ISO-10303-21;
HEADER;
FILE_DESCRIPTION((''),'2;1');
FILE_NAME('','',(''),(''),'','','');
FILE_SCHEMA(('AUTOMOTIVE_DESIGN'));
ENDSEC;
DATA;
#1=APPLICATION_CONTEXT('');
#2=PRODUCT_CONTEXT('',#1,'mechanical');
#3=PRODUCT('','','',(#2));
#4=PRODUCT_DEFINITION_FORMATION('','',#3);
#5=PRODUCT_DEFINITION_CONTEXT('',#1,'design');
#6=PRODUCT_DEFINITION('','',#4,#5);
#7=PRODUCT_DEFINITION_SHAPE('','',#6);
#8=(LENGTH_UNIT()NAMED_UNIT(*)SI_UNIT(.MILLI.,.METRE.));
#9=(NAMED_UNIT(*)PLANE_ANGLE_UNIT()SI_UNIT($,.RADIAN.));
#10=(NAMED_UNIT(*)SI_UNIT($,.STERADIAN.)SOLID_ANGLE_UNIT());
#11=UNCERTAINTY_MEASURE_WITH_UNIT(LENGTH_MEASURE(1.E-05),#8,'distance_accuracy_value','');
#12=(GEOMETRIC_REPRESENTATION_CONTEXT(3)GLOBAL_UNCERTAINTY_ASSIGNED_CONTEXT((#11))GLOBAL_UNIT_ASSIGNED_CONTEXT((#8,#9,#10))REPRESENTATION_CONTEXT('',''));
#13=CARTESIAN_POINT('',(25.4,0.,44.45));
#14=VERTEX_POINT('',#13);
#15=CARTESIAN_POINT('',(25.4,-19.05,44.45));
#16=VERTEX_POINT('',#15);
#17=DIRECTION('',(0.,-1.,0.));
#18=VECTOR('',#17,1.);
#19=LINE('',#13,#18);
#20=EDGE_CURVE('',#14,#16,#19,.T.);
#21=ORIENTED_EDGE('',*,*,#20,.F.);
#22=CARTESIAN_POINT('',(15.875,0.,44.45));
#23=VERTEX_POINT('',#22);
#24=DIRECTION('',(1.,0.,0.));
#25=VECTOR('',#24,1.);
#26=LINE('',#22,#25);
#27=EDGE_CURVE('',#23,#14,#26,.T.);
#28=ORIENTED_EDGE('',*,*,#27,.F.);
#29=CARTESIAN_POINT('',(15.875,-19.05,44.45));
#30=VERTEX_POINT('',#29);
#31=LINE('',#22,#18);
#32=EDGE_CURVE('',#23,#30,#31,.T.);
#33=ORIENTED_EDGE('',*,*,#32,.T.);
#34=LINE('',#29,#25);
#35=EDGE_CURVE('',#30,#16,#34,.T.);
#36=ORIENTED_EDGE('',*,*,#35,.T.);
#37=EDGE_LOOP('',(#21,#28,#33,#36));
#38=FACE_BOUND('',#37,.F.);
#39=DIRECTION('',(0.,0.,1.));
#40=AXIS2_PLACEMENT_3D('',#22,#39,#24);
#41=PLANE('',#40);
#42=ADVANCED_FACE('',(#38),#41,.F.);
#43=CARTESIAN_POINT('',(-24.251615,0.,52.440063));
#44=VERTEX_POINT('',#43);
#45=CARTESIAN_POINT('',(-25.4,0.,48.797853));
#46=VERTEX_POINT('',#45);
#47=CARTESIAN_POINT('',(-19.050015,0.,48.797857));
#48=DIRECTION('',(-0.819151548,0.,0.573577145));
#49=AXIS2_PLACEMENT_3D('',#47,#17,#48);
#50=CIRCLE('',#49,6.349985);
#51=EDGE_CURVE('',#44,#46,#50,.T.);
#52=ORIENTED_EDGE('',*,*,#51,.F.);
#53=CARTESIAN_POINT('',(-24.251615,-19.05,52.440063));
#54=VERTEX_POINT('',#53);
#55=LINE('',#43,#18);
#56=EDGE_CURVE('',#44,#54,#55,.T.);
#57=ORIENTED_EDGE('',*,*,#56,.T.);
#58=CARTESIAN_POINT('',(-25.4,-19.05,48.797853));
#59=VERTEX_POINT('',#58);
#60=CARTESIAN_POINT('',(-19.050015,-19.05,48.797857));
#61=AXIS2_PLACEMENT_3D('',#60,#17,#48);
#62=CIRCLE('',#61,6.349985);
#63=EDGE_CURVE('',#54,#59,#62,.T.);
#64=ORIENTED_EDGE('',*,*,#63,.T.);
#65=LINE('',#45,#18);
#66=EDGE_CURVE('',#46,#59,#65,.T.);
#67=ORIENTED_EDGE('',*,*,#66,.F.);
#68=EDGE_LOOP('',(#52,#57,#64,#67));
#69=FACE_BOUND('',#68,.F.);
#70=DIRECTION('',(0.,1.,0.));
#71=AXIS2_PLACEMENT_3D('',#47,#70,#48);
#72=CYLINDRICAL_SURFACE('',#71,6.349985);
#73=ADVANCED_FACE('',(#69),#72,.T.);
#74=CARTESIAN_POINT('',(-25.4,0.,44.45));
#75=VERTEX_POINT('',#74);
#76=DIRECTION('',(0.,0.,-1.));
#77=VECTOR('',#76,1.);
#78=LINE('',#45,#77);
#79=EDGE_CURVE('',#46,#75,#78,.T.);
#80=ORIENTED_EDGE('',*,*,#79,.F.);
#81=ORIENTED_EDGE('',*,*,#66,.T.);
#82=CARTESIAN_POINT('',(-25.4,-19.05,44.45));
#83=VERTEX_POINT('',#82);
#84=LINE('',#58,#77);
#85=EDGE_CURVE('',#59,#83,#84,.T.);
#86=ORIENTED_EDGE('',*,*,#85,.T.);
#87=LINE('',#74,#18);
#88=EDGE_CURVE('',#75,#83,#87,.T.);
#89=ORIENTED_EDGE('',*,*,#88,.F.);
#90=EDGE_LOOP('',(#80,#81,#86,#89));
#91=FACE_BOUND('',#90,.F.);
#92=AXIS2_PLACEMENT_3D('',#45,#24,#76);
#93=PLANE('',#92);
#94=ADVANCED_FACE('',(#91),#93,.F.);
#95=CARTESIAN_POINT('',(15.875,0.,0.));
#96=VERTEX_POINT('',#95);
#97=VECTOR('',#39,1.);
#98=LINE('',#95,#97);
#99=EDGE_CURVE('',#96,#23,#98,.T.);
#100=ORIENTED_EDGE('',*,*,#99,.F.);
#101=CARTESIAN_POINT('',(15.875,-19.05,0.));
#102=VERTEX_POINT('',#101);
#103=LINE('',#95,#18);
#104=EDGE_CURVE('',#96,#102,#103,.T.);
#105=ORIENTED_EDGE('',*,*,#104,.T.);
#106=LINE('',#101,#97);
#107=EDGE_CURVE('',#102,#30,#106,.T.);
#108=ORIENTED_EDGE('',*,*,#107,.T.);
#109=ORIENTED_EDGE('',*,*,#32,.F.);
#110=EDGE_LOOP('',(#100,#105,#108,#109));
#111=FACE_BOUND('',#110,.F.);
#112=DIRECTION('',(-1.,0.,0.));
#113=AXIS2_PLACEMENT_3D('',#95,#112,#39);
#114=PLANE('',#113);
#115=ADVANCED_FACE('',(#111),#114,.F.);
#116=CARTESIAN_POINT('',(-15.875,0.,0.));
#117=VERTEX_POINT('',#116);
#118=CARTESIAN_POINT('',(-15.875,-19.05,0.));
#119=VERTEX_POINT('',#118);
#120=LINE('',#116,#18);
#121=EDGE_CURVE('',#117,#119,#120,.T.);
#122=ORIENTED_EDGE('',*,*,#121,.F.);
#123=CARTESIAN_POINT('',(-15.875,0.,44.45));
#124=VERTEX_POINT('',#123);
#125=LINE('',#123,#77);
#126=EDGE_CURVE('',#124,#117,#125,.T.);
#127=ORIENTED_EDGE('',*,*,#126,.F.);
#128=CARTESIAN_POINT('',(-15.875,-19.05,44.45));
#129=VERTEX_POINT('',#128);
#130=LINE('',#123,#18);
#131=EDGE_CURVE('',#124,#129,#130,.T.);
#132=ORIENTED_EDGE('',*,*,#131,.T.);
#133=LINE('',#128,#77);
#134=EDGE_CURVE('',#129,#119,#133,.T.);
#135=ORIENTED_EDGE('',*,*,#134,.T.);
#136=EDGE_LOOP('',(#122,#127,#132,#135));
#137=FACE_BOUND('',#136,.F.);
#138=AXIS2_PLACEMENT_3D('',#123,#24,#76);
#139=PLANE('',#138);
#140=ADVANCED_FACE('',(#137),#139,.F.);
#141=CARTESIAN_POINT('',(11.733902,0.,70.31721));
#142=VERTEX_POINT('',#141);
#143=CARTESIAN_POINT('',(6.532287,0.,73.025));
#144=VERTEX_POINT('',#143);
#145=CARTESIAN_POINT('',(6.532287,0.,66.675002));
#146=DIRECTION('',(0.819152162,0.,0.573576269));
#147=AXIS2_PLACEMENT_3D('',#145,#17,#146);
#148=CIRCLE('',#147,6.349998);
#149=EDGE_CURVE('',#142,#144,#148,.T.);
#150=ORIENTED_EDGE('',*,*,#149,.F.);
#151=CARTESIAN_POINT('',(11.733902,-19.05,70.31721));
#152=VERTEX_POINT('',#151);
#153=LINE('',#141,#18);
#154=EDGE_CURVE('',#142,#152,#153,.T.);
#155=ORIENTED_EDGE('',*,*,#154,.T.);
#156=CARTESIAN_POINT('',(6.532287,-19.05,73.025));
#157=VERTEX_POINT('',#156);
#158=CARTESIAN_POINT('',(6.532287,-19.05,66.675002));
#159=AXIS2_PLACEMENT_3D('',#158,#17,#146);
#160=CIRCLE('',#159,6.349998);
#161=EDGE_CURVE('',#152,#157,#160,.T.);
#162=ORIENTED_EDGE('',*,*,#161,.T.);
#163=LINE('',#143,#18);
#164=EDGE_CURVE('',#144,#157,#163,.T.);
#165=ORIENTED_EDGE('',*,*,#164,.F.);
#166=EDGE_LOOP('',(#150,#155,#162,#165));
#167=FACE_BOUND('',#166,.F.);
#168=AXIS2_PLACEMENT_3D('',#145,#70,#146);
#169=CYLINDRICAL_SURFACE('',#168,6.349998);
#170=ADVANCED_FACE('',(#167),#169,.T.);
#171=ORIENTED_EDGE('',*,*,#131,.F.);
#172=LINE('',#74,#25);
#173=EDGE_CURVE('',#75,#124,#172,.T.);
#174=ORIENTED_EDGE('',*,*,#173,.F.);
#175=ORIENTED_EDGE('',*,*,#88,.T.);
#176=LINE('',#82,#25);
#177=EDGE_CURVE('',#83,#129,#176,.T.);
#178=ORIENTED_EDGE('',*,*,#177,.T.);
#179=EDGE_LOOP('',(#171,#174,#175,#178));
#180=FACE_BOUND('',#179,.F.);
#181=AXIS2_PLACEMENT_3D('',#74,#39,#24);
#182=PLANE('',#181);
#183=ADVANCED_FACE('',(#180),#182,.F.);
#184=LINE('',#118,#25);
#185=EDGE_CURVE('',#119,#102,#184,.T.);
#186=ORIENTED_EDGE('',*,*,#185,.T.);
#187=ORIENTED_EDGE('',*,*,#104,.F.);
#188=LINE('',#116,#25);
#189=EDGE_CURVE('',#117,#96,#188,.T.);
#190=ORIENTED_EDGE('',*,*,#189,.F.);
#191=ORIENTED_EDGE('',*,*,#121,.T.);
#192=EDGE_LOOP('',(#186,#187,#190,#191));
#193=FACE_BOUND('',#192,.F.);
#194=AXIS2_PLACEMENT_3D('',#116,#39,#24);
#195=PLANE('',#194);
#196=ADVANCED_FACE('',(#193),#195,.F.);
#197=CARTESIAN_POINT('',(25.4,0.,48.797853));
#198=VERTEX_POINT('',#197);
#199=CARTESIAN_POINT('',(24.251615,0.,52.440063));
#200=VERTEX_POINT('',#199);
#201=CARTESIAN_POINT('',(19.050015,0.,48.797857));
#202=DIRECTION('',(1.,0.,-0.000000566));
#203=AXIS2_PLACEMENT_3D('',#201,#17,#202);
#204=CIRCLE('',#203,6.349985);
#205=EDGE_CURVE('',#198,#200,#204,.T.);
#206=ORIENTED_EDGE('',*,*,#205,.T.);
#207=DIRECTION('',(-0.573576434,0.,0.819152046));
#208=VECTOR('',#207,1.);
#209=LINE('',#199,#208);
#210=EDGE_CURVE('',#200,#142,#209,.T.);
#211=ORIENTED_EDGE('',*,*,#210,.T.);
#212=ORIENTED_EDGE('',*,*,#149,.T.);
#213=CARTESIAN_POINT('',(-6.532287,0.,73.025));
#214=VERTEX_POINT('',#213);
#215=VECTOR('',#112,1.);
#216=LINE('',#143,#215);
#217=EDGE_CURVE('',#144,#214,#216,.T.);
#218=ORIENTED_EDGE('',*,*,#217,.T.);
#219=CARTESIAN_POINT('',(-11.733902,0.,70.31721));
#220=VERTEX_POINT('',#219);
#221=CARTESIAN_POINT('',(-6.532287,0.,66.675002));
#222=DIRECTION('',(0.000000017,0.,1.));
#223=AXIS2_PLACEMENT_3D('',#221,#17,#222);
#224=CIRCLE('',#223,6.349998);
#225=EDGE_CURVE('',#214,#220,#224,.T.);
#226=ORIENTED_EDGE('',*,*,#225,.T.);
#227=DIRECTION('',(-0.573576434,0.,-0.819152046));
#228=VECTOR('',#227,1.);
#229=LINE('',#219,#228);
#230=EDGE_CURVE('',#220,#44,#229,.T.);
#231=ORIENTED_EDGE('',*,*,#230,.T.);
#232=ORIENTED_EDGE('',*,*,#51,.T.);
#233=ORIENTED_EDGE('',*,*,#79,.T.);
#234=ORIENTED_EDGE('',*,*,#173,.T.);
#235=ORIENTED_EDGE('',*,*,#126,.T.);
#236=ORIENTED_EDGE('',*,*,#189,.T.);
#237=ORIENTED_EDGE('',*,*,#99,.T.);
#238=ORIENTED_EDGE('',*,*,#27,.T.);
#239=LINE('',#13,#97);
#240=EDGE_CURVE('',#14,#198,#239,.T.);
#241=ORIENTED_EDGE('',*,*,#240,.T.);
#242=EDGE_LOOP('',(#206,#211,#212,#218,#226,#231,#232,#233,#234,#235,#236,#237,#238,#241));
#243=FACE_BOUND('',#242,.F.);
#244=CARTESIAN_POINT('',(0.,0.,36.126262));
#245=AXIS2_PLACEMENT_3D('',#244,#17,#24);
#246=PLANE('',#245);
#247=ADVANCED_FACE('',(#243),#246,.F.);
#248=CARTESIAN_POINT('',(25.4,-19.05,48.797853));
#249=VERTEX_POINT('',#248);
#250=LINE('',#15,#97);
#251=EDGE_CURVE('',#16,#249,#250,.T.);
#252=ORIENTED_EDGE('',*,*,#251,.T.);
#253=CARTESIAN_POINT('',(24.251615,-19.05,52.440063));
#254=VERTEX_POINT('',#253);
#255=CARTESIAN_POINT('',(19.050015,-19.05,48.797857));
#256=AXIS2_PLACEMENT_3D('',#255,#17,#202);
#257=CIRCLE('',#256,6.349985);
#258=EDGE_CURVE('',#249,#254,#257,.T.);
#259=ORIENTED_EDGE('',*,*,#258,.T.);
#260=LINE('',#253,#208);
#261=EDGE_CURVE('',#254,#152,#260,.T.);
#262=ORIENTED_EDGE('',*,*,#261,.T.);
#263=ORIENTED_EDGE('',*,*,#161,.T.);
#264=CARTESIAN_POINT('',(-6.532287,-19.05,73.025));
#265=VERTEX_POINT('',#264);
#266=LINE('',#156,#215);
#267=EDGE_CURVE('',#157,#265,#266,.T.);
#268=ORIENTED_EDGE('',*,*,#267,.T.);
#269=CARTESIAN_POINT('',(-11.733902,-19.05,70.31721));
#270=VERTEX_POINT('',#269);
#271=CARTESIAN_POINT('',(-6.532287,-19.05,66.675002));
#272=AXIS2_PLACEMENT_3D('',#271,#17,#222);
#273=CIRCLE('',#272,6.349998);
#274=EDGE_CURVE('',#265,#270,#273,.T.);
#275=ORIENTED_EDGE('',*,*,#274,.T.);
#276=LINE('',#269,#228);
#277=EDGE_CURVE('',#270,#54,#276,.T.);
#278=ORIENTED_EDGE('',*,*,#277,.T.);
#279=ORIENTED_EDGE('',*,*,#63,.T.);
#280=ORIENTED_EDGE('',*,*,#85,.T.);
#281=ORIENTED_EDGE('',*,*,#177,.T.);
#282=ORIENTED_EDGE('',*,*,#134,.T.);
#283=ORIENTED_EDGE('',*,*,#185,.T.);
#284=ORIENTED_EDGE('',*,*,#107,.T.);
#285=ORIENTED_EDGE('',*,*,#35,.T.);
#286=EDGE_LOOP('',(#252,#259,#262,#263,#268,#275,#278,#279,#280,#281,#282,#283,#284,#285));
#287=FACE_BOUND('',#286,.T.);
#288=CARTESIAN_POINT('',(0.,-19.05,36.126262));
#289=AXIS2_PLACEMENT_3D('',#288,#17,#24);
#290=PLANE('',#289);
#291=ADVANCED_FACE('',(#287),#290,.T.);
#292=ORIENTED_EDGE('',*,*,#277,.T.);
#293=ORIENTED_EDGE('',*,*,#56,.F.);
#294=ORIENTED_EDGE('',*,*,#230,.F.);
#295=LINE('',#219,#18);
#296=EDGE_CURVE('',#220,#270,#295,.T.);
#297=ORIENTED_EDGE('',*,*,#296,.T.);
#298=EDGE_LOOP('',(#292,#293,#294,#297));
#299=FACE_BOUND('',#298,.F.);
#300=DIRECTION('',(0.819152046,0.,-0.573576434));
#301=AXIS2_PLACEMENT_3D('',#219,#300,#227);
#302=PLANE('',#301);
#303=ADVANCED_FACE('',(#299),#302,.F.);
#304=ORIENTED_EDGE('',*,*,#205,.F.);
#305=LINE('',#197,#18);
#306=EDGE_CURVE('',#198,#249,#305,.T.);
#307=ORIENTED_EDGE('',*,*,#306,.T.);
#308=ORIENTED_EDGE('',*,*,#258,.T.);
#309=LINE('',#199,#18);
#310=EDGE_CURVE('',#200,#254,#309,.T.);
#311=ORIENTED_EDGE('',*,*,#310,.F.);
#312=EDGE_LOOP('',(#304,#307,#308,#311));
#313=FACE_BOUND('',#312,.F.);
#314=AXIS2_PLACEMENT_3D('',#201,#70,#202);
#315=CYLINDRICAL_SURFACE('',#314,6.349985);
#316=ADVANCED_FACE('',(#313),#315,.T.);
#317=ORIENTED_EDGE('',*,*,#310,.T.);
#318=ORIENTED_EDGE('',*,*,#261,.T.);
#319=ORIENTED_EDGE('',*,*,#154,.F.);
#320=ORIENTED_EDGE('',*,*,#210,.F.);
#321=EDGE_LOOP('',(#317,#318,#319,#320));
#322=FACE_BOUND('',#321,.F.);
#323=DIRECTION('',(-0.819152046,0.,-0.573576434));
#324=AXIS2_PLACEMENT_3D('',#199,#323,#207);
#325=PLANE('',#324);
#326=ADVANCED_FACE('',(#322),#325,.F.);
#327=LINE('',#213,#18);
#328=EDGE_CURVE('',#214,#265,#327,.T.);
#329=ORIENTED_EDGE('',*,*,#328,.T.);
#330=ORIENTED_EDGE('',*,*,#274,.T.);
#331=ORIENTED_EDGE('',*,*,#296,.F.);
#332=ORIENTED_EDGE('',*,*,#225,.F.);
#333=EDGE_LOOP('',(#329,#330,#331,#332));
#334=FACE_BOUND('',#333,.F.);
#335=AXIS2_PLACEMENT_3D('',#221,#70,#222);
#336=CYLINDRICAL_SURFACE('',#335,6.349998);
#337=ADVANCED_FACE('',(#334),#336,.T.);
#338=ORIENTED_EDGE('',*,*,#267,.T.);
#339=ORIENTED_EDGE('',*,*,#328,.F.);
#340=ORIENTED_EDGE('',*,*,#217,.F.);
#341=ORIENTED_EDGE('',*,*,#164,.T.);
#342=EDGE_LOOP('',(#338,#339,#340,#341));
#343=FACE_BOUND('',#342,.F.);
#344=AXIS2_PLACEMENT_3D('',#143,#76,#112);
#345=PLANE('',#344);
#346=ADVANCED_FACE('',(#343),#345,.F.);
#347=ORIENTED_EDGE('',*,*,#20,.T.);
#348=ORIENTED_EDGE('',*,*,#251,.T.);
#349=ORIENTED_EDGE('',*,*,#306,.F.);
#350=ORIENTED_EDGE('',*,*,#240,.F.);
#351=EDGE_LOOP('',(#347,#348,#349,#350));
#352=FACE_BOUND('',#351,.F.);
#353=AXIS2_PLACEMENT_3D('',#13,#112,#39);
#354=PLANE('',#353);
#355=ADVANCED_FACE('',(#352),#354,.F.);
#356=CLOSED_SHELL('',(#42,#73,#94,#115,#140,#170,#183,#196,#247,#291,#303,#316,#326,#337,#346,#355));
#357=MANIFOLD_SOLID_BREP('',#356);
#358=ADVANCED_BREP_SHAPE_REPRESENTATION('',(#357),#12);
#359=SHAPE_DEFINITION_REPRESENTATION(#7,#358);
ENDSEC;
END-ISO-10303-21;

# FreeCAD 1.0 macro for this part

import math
import FreeCAD as App
import Part
import Sketcher
Q = App.Units.Quantity

doc = App.newDocument("Part")
body = doc.addObject("PartDesign::Body", "Body")

# Sketch on XZ plane
sketch1 = doc.addObject("Sketcher::SketchObject", "Sketch")
body.addObject(sketch1)
sketch1.AttachmentSupport = (doc.XZ_Plane, [""])
sketch1.MapMode = "FlatFace"
sketch1.addGeometry([
    Part.LineSegment(App.Vector(-15.9, 0, 0), App.Vector(15.9, 0, 0)),  # 0
    Part.LineSegment(App.Vector(15.9, 0, 0), App.Vector(15.9, 44.5, 0)),  # 1
    Part.LineSegment(App.Vector(15.9, 44.5, 0), App.Vector(25.4, 44.5, 0)),  # 2
    Part.LineSegment(App.Vector(25.4, 44.5, 0), App.Vector(25.4, 48.8, 0)),  # 3
    Part.ArcOfCircle(Part.Circle(App.Vector(19.1, 48.8, 0), App.Vector(0, 0, 1), 6.3), math.radians(0), math.radians(35)),  # 4
    Part.LineSegment(App.Vector(24.3, 52.4, 0), App.Vector(11.7, 70.3, 0)),  # 5
    Part.ArcOfCircle(Part.Circle(App.Vector(6.5, 66.7, 0), App.Vector(0, 0, 1), 6.3), math.radians(35), math.radians(90)),  # 6
    Part.LineSegment(App.Vector(6.5, 73, 0), App.Vector(-6.5, 73, 0)),  # 7
    Part.ArcOfCircle(Part.Circle(App.Vector(-6.5, 66.7, 0), App.Vector(0, 0, 1), 6.3), math.radians(90), math.radians(145)),  # 8
    Part.LineSegment(App.Vector(-11.7, 70.3, 0), App.Vector(-24.3, 52.4, 0)),  # 9
    Part.ArcOfCircle(Part.Circle(App.Vector(-19.1, 48.8, 0), App.Vector(0, 0, 1), 6.3), math.radians(145), math.radians(180)),  # 10
    Part.LineSegment(App.Vector(-25.4, 48.8, 0), App.Vector(-25.4, 44.5, 0)),  # 11
    Part.LineSegment(App.Vector(-25.4, 44.5, 0), App.Vector(-15.9, 44.5, 0)),  # 12
    Part.LineSegment(App.Vector(-15.9, 44.5, 0), App.Vector(-15.9, 0, 0)),  # 13
], False)
sketch1.addConstraint([
    Sketcher.Constraint("Coincident", 0, 2, 1, 1),
    Sketcher.Constraint("Coincident", 1, 2, 2, 1),
    Sketcher.Constraint("Coincident", 2, 2, 3, 1),
    Sketcher.Constraint("Tangent", 3, 2, 4, 1),
    Sketcher.Constraint("Tangent", 4, 2, 5, 1),
    Sketcher.Constraint("Tangent", 5, 2, 6, 1),
    Sketcher.Constraint("Tangent", 6, 2, 7, 1),
    Sketcher.Constraint("Tangent", 7, 2, 8, 1),
    Sketcher.Constraint("Tangent", 8, 2, 9, 1),
    Sketcher.Constraint("Tangent", 9, 2, 10, 1),
    Sketcher.Constraint("Tangent", 10, 2, 11, 1),
    Sketcher.Constraint("Coincident", 11, 2, 12, 1),
    Sketcher.Constraint("Coincident", 12, 2, 13, 1),
    Sketcher.Constraint("Coincident", 13, 2, 0, 1),
    Sketcher.Constraint("Horizontal", 0),
    Sketcher.Constraint("Vertical", 1),
    Sketcher.Constraint("Horizontal", 2),
    Sketcher.Constraint("Vertical", 3),
    Sketcher.Constraint("Horizontal", 7),
    Sketcher.Constraint("Vertical", 11),
    Sketcher.Constraint("Horizontal", 12),
    Sketcher.Constraint("Vertical", 13),
    Sketcher.Constraint("Equal", 6, 8),
    Sketcher.Constraint("Equal", 4, 10),
    Sketcher.Constraint("Symmetric", 0, 2, 13, 2, -1, 1),
    Sketcher.Constraint("Symmetric", 4, 3, 10, 3, -2),
    Sketcher.Constraint("Horizontal", 5, 2, 8, 2),
    Sketcher.Constraint("Horizontal", 2, 2, 11, 2),
    Sketcher.Constraint("Radius", 6, Q("0.2499999 in")),
    Sketcher.Constraint("DistanceX", -1, 1, 2, 2, Q("1 in")),
    Sketcher.Constraint("Angle", 5, Q("125 deg")),
    Sketcher.Constraint("DistanceX", 0, 1, 0, 2, Q("1.25 in")),
    Sketcher.Constraint("DistanceY", 1, 1, 1, 2, Q("1.75 in")),
    Sketcher.Constraint("DistanceY", -1, 1, 6, 3, Q("2.6250001 in")),
    Sketcher.Constraint("Radius", 4, Q("6.349985 mm")),
    Sketcher.Constraint("DistanceX", 8, 2, -1, 1, Q("11.733902 mm")),
])
pad1 = doc.addObject("PartDesign::Pad", "Pad")
body.addObject(pad1)
pad1.Profile = sketch1
pad1.Length = Q("0.75 in")

doc.recompute()
